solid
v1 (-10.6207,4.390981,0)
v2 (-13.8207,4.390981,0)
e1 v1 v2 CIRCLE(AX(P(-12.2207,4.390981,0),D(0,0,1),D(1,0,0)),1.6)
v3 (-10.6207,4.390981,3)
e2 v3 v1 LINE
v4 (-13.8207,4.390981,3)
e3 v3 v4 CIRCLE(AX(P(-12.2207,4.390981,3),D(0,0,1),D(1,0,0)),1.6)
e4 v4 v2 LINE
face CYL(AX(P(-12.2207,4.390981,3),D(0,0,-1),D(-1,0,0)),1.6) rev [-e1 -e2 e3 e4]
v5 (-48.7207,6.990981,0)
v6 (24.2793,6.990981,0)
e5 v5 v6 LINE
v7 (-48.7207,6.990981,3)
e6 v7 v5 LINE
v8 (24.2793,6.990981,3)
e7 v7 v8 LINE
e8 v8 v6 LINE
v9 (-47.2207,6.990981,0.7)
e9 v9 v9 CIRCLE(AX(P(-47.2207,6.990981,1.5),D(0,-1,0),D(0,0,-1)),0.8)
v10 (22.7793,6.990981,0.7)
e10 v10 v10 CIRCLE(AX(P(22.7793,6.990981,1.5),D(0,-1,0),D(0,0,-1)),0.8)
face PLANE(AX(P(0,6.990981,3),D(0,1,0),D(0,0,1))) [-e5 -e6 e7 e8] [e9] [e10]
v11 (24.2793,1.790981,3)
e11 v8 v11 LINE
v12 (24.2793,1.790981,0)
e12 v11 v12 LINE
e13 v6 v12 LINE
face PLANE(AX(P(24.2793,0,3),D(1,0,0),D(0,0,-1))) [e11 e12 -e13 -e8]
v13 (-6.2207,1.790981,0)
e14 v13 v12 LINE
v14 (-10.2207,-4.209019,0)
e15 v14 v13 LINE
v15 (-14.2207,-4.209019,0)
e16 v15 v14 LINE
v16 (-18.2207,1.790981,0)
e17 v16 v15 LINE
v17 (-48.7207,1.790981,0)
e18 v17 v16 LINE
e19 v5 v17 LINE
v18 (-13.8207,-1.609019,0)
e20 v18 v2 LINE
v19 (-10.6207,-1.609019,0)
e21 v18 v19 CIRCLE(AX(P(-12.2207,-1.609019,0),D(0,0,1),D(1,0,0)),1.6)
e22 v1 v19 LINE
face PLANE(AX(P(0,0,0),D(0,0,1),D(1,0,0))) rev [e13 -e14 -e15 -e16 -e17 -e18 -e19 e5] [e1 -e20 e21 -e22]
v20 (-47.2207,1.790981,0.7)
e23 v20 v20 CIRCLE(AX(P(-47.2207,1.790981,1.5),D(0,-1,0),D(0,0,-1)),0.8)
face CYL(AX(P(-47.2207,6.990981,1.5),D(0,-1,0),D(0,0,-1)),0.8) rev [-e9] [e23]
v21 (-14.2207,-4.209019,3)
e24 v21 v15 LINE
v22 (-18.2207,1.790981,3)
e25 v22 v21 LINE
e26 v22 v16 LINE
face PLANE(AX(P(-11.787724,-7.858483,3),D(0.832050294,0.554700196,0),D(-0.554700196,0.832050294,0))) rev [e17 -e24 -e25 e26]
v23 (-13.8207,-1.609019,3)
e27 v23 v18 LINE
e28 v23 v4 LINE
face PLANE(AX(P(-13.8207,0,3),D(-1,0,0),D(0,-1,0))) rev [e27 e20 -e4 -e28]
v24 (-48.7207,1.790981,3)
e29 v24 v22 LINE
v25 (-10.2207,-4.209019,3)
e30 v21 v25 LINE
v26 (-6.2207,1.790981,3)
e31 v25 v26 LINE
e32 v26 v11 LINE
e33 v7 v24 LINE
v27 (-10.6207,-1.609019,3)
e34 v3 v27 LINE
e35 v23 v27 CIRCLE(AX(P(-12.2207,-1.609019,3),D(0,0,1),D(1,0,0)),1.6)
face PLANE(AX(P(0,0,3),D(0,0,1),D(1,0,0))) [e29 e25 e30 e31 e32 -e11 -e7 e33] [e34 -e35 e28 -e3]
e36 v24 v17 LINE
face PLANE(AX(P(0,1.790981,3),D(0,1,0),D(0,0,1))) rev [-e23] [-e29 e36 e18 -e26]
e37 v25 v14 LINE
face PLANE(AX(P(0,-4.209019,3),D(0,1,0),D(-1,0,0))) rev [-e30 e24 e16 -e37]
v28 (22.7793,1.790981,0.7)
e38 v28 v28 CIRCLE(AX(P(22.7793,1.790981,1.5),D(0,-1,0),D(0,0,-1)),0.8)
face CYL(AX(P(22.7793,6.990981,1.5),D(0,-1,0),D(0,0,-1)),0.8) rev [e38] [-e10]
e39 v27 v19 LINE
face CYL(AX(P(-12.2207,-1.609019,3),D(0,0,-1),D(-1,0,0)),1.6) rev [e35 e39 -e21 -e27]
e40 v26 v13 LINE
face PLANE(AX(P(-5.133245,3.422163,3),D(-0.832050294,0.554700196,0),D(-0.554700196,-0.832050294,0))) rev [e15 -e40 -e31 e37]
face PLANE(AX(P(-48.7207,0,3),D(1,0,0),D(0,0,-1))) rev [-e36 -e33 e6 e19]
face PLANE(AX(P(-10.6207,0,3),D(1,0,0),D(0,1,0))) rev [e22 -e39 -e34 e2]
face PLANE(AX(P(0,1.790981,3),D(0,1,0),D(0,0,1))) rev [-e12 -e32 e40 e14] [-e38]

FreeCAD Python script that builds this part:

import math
import FreeCAD as App
import Part
import Sketcher
from FreeCAD import Vector

doc = App.newDocument("Part")
body = doc.addObject("PartDesign::Body", "Body")

sketch1 = doc.addObject("Sketcher::SketchObject", "Sketch")
body.addObject(sketch1)
sketch1.AttachmentSupport = (doc.XY_Plane, [""])
sketch1.MapMode = "FlatFace"
sketch1.addGeometry([
    Part.LineSegment(Vector(-48.7, 1.8, 0), Vector(-18.2, 1.8, 0)),
    Part.LineSegment(Vector(-18.2, 1.8, 0), Vector(-14.2, -4.2, 0)),
    Part.LineSegment(Vector(-14.2, -4.2, 0), Vector(-10.2, -4.2, 0)),
    Part.LineSegment(Vector(-10.2, -4.2, 0), Vector(-6.2, 1.8, 0)),
    Part.LineSegment(Vector(-6.2, 1.8, 0), Vector(24.3, 1.8, 0)),
    Part.LineSegment(Vector(24.3, 1.8, 0), Vector(24.3, 7, 0)),
    Part.LineSegment(Vector(24.3, 7, 0), Vector(-48.7, 7, 0)),
    Part.LineSegment(Vector(-48.7, 7, 0), Vector(-48.7, 1.8, 0)),
    Part.LineSegment(Vector(-10.6, 4.4, 0), Vector(-10.6, -1.6, 0)),
    Part.ArcOfCircle(Part.Circle(Vector(-12.2, -1.6, 0), Vector(0, 0, 1), 1.6), math.radians(180), math.radians(360)),
    Part.LineSegment(Vector(-13.8, -1.6, 0), Vector(-13.8, 4.4, 0)),
    Part.ArcOfCircle(Part.Circle(Vector(-12.2, 4.4, 0), Vector(0, 0, 1), 1.6), math.radians(0), math.radians(180)),
], False)
sketch1.addConstraint([
    Sketcher.Constraint("Coincident", 0, 2, 1, 1),
    Sketcher.Constraint("Coincident", 1, 2, 2, 1),
    Sketcher.Constraint("Coincident", 2, 2, 3, 1),
    Sketcher.Constraint("Coincident", 3, 2, 4, 1),
    Sketcher.Constraint("Coincident", 4, 2, 5, 1),
    Sketcher.Constraint("Coincident", 5, 2, 6, 1),
    Sketcher.Constraint("Coincident", 6, 2, 7, 1),
    Sketcher.Constraint("Coincident", 7, 2, 0, 1),
    Sketcher.Constraint("Tangent", 8, 2, 9, 2),
    Sketcher.Constraint("Tangent", 9, 1, 10, 1),
    Sketcher.Constraint("Tangent", 10, 2, 11, 2),
    Sketcher.Constraint("Tangent", 11, 1, 8, 1),
    Sketcher.Constraint("Horizontal", 0),
    Sketcher.Constraint("Horizontal", 2),
    Sketcher.Constraint("Horizontal", 4),
    Sketcher.Constraint("Vertical", 5),
    Sketcher.Constraint("Horizontal", 6),
    Sketcher.Constraint("Vertical", 7),
    Sketcher.Constraint("Vertical", 8),
    Sketcher.Constraint("Vertical", 10),
    Sketcher.Constraint("Horizontal", 0, 2, 3, 2),
    Sketcher.Constraint("Equal", 0, 4),
    Sketcher.Constraint("Equal", 1, 3),
    Sketcher.Constraint("Radius", 9, 1.6),
    Sketcher.Constraint("DistanceX", 2, 1, 2, 2, 4.0),
    Sketcher.Constraint("DistanceX", 6, 2, 6, 1, 73.0),
    Sketcher.Constraint("DistanceY", 8, 2, 8, 1, 6.0),
    Sketcher.Constraint("DistanceX", 0, 1, 0, 2, 30.5),
    Sketcher.Constraint("DistanceY", 5, 1, 5, 2, 5.2),
    Sketcher.Constraint("DistanceX", 0, 2, 11, 3, 6.0),
    Sketcher.Constraint("DistanceY", 1, 2, 0, 2, 6.0),
    Sketcher.Constraint("DistanceY", 0, 2, 11, 3, 2.6),
    Sketcher.Constraint("DistanceX", 9, 3, -1, 1, 12.2207),
    Sketcher.Constraint("DistanceY", 9, 3, -1, 1, 1.609019),
])
pad1 = doc.addObject("PartDesign::Pad", "Pad")
body.addObject(pad1)
pad1.Profile = sketch1
pad1.Length = 3

sketch2 = doc.addObject("Sketcher::SketchObject", "Sketch001")
body.addObject(sketch2)
sketch2.AttachmentSupport = (doc.XZ_Plane, [""])
sketch2.MapMode = "FlatFace"
sketch2.AttachmentOffset = App.Placement(Vector(0, 0, -1.790981), App.Rotation())
sketch2.addGeometry([
    Part.Circle(Vector(22.8, 1.5, 0), Vector(0, 0, 1), 0.8),
    Part.Circle(Vector(-47.2, 1.5, 0), Vector(0, 0, 1), 0.8),
], False)
sketch2.addConstraint([
    Sketcher.Constraint("Equal", 0, 1),
    Sketcher.Constraint("Horizontal", 0, 3, 1, 3),
    Sketcher.Constraint("Diameter", 0, 1.6),
    Sketcher.Constraint("DistanceX", 1, 3, 0, 3, 70.0),
    Sketcher.Constraint("DistanceY", -1, 1, 0, 3, 1.5),
    Sketcher.Constraint("DistanceX", -1, 1, 0, 3, 22.7793),
])
pocket1 = doc.addObject("PartDesign::Pocket", "Pocket")
body.addObject(pocket1)
pocket1.Profile = sketch2
pocket1.Type = "ThroughAll"

doc.recompute()
